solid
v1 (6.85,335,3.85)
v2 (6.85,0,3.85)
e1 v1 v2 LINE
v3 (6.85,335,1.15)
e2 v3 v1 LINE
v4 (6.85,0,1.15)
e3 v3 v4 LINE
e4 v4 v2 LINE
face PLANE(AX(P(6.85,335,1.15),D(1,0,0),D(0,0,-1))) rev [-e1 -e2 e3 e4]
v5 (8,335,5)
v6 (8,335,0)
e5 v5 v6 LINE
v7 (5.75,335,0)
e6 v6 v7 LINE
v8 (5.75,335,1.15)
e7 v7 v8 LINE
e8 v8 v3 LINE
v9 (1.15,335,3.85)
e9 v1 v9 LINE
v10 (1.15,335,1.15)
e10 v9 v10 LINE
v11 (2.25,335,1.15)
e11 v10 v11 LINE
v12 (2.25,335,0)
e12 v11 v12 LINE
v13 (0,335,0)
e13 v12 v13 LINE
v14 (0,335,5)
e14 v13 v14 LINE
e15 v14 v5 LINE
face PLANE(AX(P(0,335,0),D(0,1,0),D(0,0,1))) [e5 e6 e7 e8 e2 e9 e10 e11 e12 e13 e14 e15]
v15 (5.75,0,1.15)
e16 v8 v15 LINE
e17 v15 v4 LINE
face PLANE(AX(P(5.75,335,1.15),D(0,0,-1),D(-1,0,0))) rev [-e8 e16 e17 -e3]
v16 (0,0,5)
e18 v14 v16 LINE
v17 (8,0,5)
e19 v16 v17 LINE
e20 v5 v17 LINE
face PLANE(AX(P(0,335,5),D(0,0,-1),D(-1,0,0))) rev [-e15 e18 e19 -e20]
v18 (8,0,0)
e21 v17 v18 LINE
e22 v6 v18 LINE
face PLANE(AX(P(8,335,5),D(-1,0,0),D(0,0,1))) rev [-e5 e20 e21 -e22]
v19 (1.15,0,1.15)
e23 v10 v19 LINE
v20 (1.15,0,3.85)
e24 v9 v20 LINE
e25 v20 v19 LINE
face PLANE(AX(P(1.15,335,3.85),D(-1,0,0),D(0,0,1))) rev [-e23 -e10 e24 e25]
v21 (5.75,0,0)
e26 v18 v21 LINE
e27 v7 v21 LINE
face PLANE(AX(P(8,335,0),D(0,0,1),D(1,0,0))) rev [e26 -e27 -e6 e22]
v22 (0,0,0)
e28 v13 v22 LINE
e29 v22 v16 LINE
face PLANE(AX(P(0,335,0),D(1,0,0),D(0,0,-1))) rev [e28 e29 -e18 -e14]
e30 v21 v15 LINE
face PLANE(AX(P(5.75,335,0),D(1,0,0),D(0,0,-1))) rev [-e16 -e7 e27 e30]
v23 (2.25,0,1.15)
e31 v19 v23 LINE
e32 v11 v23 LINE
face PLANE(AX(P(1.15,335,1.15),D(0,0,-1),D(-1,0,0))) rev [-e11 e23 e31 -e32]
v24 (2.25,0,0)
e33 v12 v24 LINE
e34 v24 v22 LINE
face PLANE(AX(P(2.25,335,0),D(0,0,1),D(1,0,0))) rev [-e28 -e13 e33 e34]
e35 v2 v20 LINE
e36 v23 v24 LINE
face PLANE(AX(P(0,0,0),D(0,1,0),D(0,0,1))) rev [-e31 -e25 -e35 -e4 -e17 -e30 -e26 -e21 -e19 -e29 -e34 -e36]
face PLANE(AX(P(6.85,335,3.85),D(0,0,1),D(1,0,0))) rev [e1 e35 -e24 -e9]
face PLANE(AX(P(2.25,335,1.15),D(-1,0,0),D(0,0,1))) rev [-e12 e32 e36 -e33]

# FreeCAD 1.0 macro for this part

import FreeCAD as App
import Part
import Sketcher
from FreeCAD import Vector
Q = App.Units.Quantity


def add_polygon(sketch, points):
    """Adds a closed chain of lines whose ends are joined by coincident constraints."""
    first, n = sketch.GeometryCount, len(points)
    for a, b in zip(points, points[1:] + points[:1]):
        sketch.addGeometry(Part.LineSegment(App.Vector(*a, 0), App.Vector(*b, 0)), False)
    for i in range(n):
        sketch.addConstraint(Sketcher.Constraint("Coincident", first + i, 2, first + (i + 1) % n, 1))

doc = App.newDocument("Part")
body = doc.addObject("PartDesign::Body", "Body")

# Sketch on XZ plane
sketch1 = body.newObject("Sketcher::SketchObject", "Sketch")
sketch1.AttachmentSupport = (doc.getObject("XZ_Plane"), [""])
sketch1.MapMode = "FlatFace"
add_polygon(sketch1, [(0, 5), (8, 5), (8, 0), (5.8, 0), (5.8, 1.1), (6.8, 1.1), (6.8, 3.9), (1.1, 3.9), (1.1, 1.1), (2.2, 1.1), (2.2, 0), (0, 0)])  # lines 0-11
sketch1.addConstraint(Sketcher.Constraint("Horizontal", 0))
sketch1.addConstraint(Sketcher.Constraint("Vertical", 1))
sketch1.addConstraint(Sketcher.Constraint("Horizontal", 2))
sketch1.addConstraint(Sketcher.Constraint("Vertical", 3))
sketch1.addConstraint(Sketcher.Constraint("Horizontal", 4))
sketch1.addConstraint(Sketcher.Constraint("Vertical", 5))
sketch1.addConstraint(Sketcher.Constraint("Horizontal", 6))
sketch1.addConstraint(Sketcher.Constraint("Vertical", 7))
sketch1.addConstraint(Sketcher.Constraint("Horizontal", 8))
sketch1.addConstraint(Sketcher.Constraint("Vertical", 9))
sketch1.addConstraint(Sketcher.Constraint("Horizontal", 10))
sketch1.addConstraint(Sketcher.Constraint("Vertical", 11))
sketch1.addConstraint(Sketcher.Constraint("Coincident", 10, 2, -1, 1))
sketch1.addConstraint(Sketcher.Constraint("PointOnObject", 1, 2, -1))
sketch1.addConstraint(Sketcher.Constraint("Horizontal", 4, 2, 7, 2))
sketch1.addConstraint(Sketcher.Constraint("Equal", 4, 8))
sketch1.addConstraint(Sketcher.Constraint("Equal", 2, 10))
sketch1.addConstraint(Sketcher.Constraint("DistanceX", 0, 1, 0, 2, Q("8 mm")))
sketch1.addConstraint(Sketcher.Constraint("DistanceY", 1, 2, 1, 1, Q("5 mm")))
sketch1.addConstraint(Sketcher.Constraint("DistanceX", 4, 1, 4, 2, Q("1.1 mm")))
sketch1.addConstraint(Sketcher.Constraint("DistanceX", 6, 2, 6, 1, Q("5.7 mm")))
sketch1.addConstraint(Sketcher.Constraint("DistanceY", 5, 1, 5, 2, Q("2.7 mm")))
sketch1.addConstraint(Sketcher.Constraint("DistanceY", 3, 1, 3, 2, Q("1.15 mm")))
pad1 = body.newObject("PartDesign::Pad", "Pad")
pad1.Profile = sketch1
pad1.Length = 335
pad1.Reversed = True

doc.recompute()
